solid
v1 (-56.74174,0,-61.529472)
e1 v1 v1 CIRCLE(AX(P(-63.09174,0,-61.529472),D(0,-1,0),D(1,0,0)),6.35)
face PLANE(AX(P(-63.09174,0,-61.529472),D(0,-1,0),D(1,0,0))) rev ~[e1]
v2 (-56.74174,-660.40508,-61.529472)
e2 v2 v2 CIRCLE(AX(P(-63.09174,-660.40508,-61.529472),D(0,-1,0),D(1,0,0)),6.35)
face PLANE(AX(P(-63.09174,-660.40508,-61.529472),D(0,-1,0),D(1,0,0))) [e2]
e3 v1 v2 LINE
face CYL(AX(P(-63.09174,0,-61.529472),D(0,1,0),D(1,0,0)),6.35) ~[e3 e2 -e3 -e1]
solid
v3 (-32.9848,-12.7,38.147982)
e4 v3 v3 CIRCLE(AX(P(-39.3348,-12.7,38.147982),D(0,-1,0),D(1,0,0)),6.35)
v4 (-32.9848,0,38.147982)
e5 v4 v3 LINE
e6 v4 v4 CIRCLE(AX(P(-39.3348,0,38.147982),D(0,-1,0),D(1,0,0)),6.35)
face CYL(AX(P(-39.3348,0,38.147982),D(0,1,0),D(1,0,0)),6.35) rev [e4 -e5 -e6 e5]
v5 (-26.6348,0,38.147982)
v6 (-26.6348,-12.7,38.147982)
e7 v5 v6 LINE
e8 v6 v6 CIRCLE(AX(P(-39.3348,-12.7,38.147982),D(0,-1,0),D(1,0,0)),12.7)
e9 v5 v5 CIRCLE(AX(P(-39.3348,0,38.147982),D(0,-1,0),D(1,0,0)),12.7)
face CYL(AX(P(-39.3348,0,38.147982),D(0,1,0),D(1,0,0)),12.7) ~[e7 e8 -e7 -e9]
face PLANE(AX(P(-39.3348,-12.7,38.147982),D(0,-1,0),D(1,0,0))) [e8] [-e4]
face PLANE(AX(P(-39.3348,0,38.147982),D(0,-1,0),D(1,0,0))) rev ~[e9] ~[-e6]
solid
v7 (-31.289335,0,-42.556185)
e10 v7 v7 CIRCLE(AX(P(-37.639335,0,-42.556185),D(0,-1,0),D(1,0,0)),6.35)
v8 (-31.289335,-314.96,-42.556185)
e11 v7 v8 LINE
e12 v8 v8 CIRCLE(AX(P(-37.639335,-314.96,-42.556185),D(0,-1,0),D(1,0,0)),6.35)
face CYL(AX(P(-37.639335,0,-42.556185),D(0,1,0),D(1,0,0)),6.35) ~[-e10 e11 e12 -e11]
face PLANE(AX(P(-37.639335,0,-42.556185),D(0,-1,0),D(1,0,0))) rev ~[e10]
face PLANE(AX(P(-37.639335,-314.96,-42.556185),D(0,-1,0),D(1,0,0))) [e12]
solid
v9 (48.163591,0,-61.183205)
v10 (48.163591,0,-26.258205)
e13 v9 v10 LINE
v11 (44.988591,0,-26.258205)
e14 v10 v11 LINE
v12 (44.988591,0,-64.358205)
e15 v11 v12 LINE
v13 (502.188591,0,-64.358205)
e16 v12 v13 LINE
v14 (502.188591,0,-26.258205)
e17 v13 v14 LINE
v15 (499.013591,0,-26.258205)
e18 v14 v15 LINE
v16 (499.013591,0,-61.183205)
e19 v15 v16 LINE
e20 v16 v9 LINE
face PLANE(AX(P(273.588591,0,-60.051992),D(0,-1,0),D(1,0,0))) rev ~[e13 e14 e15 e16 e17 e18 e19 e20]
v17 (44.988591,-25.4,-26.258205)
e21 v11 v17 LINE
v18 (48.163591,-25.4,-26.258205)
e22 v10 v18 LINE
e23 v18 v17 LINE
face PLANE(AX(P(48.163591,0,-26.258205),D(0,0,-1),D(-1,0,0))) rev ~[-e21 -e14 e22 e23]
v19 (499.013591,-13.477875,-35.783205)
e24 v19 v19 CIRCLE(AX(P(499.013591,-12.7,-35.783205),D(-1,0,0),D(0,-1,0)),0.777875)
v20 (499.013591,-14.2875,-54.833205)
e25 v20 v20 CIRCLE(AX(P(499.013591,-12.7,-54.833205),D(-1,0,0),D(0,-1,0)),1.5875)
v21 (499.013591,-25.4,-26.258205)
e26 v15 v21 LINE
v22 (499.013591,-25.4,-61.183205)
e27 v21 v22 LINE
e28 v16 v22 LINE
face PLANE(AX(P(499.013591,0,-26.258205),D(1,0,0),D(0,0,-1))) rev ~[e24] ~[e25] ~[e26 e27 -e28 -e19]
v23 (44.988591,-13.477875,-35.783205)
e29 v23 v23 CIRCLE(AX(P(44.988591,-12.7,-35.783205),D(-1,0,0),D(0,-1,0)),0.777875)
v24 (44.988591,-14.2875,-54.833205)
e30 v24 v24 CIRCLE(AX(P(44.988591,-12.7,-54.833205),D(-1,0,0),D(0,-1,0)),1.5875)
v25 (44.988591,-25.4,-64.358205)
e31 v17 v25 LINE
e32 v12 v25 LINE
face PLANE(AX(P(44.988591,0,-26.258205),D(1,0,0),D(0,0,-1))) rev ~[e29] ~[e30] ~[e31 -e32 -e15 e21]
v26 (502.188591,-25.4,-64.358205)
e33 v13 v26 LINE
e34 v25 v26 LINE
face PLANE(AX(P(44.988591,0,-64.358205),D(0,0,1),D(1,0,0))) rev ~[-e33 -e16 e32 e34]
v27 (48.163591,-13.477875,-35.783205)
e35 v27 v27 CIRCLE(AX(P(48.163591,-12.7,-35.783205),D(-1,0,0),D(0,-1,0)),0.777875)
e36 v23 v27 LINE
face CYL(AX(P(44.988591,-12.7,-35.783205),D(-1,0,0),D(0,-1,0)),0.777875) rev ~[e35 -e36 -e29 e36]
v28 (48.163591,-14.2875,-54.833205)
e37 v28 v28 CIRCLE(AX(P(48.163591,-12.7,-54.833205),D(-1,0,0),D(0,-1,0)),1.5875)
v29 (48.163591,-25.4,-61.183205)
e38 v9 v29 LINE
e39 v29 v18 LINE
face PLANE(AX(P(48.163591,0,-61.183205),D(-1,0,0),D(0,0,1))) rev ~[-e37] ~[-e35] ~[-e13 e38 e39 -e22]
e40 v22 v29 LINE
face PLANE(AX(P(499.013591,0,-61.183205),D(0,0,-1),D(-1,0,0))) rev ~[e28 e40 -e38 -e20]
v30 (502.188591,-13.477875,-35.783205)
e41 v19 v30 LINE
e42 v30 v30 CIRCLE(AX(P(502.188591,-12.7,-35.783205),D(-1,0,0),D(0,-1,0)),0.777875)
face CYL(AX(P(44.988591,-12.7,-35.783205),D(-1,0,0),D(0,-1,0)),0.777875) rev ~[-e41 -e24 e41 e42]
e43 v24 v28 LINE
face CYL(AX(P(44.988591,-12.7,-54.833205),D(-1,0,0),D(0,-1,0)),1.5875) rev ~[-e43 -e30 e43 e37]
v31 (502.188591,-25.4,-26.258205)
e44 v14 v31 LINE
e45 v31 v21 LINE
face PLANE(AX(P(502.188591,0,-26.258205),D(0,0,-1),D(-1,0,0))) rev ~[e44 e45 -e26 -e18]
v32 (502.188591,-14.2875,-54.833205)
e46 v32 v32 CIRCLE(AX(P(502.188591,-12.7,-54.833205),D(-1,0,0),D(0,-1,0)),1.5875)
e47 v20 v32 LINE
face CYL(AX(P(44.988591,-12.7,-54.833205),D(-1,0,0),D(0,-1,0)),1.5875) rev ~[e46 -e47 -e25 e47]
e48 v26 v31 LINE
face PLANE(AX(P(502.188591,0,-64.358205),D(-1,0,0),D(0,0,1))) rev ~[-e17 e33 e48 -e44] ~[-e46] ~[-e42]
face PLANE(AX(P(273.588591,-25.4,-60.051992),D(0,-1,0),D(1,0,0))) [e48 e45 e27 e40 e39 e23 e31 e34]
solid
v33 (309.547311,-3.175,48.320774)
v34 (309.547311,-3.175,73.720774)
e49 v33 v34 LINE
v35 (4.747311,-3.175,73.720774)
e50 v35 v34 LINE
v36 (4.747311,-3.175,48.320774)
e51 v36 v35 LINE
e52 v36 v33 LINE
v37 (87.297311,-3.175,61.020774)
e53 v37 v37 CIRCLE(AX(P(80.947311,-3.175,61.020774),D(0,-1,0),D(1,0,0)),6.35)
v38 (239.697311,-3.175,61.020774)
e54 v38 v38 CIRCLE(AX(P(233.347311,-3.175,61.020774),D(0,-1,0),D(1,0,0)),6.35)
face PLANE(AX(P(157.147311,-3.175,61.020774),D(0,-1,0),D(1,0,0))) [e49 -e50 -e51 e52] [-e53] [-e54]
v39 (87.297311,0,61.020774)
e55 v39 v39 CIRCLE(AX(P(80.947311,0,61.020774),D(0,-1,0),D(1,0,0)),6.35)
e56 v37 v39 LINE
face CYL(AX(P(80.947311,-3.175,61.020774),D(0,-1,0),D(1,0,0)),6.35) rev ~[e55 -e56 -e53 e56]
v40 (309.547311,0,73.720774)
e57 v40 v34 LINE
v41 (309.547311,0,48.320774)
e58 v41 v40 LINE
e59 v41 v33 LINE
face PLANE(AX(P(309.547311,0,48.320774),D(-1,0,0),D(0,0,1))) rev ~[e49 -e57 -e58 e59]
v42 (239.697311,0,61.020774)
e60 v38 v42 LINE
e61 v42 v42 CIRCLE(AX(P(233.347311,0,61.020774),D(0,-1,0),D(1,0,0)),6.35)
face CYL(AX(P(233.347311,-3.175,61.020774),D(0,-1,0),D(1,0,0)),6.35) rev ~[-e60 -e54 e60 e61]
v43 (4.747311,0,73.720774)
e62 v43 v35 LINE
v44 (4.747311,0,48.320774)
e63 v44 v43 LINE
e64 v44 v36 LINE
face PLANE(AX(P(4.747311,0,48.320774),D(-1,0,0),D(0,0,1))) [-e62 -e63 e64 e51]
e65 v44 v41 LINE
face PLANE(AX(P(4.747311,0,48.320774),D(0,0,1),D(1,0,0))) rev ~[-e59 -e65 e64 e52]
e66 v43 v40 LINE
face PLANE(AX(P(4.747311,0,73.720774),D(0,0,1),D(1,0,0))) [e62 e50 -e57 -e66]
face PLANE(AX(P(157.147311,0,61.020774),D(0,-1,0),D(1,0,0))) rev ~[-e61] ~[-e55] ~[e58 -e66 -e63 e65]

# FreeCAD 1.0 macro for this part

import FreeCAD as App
import Part
import Sketcher

V = App.Vector
Q = App.Units.Quantity


def add_polygon(sketch, points):
    """Adds a closed chain of lines whose ends are joined by coincident constraints."""
    first, n = sketch.GeometryCount, len(points)
    for a, b in zip(points, points[1:] + points[:1]):
        sketch.addGeometry(Part.LineSegment(App.Vector(*a, 0), App.Vector(*b, 0)), False)
    for i in range(n):
        sketch.addConstraint(Sketcher.Constraint("Coincident", first + i, 2, first + (i + 1) % n, 1))

doc = App.newDocument("Part")
body = doc.addObject("PartDesign::Body", "Body")

# Sketch on XZ plane
sketch1 = body.newObject("Sketcher::SketchObject", "Sketch")
sketch1.AttachmentSupport = (doc.getObject("XZ_Plane"), [""])
sketch1.MapMode = "FlatFace"
add_polygon(sketch1, [(48.2, -26.3), (45, -26.3), (45, -64.4), (502.2, -64.4), (502.2, -26.3), (499, -26.3), (499, -61.2), (48.2, -61.2)])  # lines 0-7
sketch1.addConstraint(Sketcher.Constraint("Horizontal", 0))
sketch1.addConstraint(Sketcher.Constraint("Vertical", 1))
sketch1.addConstraint(Sketcher.Constraint("Horizontal", 2))
sketch1.addConstraint(Sketcher.Constraint("Vertical", 3))
sketch1.addConstraint(Sketcher.Constraint("Horizontal", 4))
sketch1.addConstraint(Sketcher.Constraint("Vertical", 5))
sketch1.addConstraint(Sketcher.Constraint("Horizontal", 6))
sketch1.addConstraint(Sketcher.Constraint("Vertical", 7))
sketch1.addConstraint(Sketcher.Constraint("Horizontal", 0, 2, 3, 2))
sketch1.addConstraint(Sketcher.Constraint("Equal", 0, 4))
sketch1.addConstraint(Sketcher.Constraint("DistanceX", 2, 1, 2, 2, Q("18 in")))
sketch1.addConstraint(Sketcher.Constraint("DistanceY", 1, 2, 1, 1, Q("1.5 in")))
sketch1.addConstraint(Sketcher.Constraint("DistanceX", 6, 2, 6, 1, Q("17.75 in")))
sketch1.addConstraint(Sketcher.Constraint("DistanceY", 5, 2, 5, 1, Q("1.375 in")))
sketch1.addConstraint(Sketcher.Constraint("DistanceX", -1, 1, 0, 2, Q("44.988591 mm")))
sketch1.addConstraint(Sketcher.Constraint("DistanceY", 0, 2, -1, 1, Q("26.258205 mm")))
pad1 = body.newObject("PartDesign::Pad", "Pad")
pad1.Profile = sketch1
pad1.Length = Q("1 in")

# Sketch on YZ plane
sketch2 = body.newObject("Sketcher::SketchObject", "Sketch001")
sketch2.AttachmentSupport = (doc.getObject("YZ_Plane"), [""])
sketch2.MapMode = "FlatFace"
sketch2.AttachmentOffset = App.Placement(V(0, 0, 44.988591), App.Rotation())
sketch2.addGeometry(Part.Circle(V(-12.7, -54.8, 0), V(0, 0, 1), 1.6), False)
sketch2.addGeometry(Part.Circle(V(-12.7, -35.8, 0), V(0, 0, 1), 0.8), False)
sketch2.addConstraint(Sketcher.Constraint("Vertical", 0, 3, 1, 3))
sketch2.addConstraint(Sketcher.Constraint("Diameter", 0, Q("0.125 in")))
sketch2.addConstraint(Sketcher.Constraint("DistanceX", 0, 3, -1, 1, Q("0.5 in")))
sketch2.addConstraint(Sketcher.Constraint("DistanceY", 0, 3, 1, 3, Q("0.75 in")))
sketch2.addConstraint(Sketcher.Constraint("Diameter", 1, Q("1.55575 mm")))
sketch2.addConstraint(Sketcher.Constraint("DistanceY", 0, 3, -1, 1, Q("54.833205 mm")))
pocket1 = body.newObject("PartDesign::Pocket", "Pocket")
pocket1.Profile = sketch2
pocket1.Type = "ThroughAll"
pocket1.Reversed = True
body2 = doc.addObject("PartDesign::Body", "Body001")

# Sketch on XZ plane
sketch3 = body2.newObject("Sketcher::SketchObject", "Sketch002")
sketch3.AttachmentSupport = (doc.getObject("XZ_Plane001"), [""])
sketch3.MapMode = "FlatFace"
add_polygon(sketch3, [(5, 74), (5, 48), (310, 48), (310, 74)])  # lines 0-3
sketch3.addConstraint(Sketcher.Constraint("Vertical", 0))
sketch3.addConstraint(Sketcher.Constraint("Horizontal", 1))
sketch3.addConstraint(Sketcher.Constraint("Vertical", 2))
sketch3.addConstraint(Sketcher.Constraint("Horizontal", 3))
sketch3.addConstraint(Sketcher.Constraint("DistanceX", 1, 1, 1, 2, Q("12 in")))
sketch3.addConstraint(Sketcher.Constraint("DistanceY", 0, 2, 0, 1, Q("1 in")))
sketch3.addConstraint(Sketcher.Constraint("DistanceX", -1, 1, 0, 2, Q("4.747311 mm")))
sketch3.addConstraint(Sketcher.Constraint("DistanceY", -1, 1, 0, 2, Q("48.320774 mm")))
pad2 = body2.newObject("PartDesign::Pad", "Pad001")
pad2.Profile = sketch3
pad2.Length = Q("0.125 in")

# Sketch on XZ plane
sketch4 = body2.newObject("Sketcher::SketchObject", "Sketch003")
sketch4.AttachmentSupport = (doc.getObject("XZ_Plane001"), [""])
sketch4.MapMode = "FlatFace"
sketch4.AttachmentOffset = App.Placement(V(0, 0, 0.125 * 25.4), App.Rotation())
sketch4.addGeometry(Part.Circle(V(233, 61, 0), V(0, 0, 1), 6), False)
sketch4.addGeometry(Part.Circle(V(81, 61, 0), V(0, 0, 1), 6), False)
sketch4.addConstraint(Sketcher.Constraint("Equal", 0, 1))
sketch4.addConstraint(Sketcher.Constraint("Horizontal", 0, 3, 1, 3))
sketch4.addConstraint(Sketcher.Constraint("Diameter", 0, Q("0.5 in")))
sketch4.addConstraint(Sketcher.Constraint("DistanceX", 1, 3, 0, 3, Q("6 in")))
sketch4.addConstraint(Sketcher.Constraint("DistanceX", -1, 1, 0, 3, Q("233.347311 mm")))
sketch4.addConstraint(Sketcher.Constraint("DistanceY", -1, 1, 0, 3, Q("61.020774 mm")))
pocket2 = body2.newObject("PartDesign::Pocket", "Pocket001")
pocket2.Profile = sketch4
pocket2.Type = "ThroughAll"
body3 = doc.addObject("PartDesign::Body", "Body002")

# Sketch on XZ plane
sketch5 = body3.newObject("Sketcher::SketchObject", "Sketch004")
sketch5.AttachmentSupport = (doc.getObject("XZ_Plane002"), [""])
sketch5.MapMode = "FlatFace"
sketch5.addGeometry(Part.Circle(V(-39, 38, 0), V(0, 0, 1), 13), False)
sketch5.addGeometry(Part.Circle(V(-39, 38, 0), V(0, 0, 1), 6), False)
sketch5.addConstraint(Sketcher.Constraint("Coincident", 1, 3, 0, 3))
sketch5.addConstraint(Sketcher.Constraint("Diameter", 0, Q("1 in")))
sketch5.addConstraint(Sketcher.Constraint("Diameter", 1, Q("0.5 in")))
sketch5.addConstraint(Sketcher.Constraint("DistanceX", 0, 3, -1, 1, Q("39.3348 mm")))
sketch5.addConstraint(Sketcher.Constraint("DistanceY", -1, 1, 0, 3, Q("38.147982 mm")))
pad3 = body3.newObject("PartDesign::Pad", "Pad002")
pad3.Profile = sketch5
pad3.Length = Q("0.5 in")
body4 = doc.addObject("PartDesign::Body", "Body003")

# Sketch on XZ plane
sketch6 = body4.newObject("Sketcher::SketchObject", "Sketch005")
sketch6.AttachmentSupport = (doc.getObject("XZ_Plane003"), [""])
sketch6.MapMode = "FlatFace"
sketch6.addGeometry(Part.Circle(V(-38, -43, 0), V(0, 0, 1), 6), False)
sketch6.addConstraint(Sketcher.Constraint("Diameter", 0, Q("0.5 in")))
sketch6.addConstraint(Sketcher.Constraint("DistanceX", 0, 3, -1, 1, Q("37.639335 mm")))
sketch6.addConstraint(Sketcher.Constraint("DistanceY", 0, 3, -1, 1, Q("42.556185 mm")))
pad4 = body4.newObject("PartDesign::Pad", "Pad003")
pad4.Profile = sketch6
pad4.Length = Q("12.4 in")
body5 = doc.addObject("PartDesign::Body", "Body004")

# Sketch on XZ plane
sketch7 = body5.newObject("Sketcher::SketchObject", "Sketch006")
sketch7.AttachmentSupport = (doc.getObject("XZ_Plane004"), [""])
sketch7.MapMode = "FlatFace"
sketch7.addGeometry(Part.Circle(V(-63, -62, 0), V(0, 0, 1), 6), False)
sketch7.addConstraint(Sketcher.Constraint("Diameter", 0, Q("0.5 in")))
sketch7.addConstraint(Sketcher.Constraint("DistanceX", 0, 3, -1, 1, Q("63.09174 mm")))
sketch7.addConstraint(Sketcher.Constraint("DistanceY", 0, 3, -1, 1, Q("61.529472 mm")))
pad5 = body5.newObject("PartDesign::Pad", "Pad004")
pad5.Profile = sketch7
pad5.Length = Q("26.0002 in")

doc.recompute()
